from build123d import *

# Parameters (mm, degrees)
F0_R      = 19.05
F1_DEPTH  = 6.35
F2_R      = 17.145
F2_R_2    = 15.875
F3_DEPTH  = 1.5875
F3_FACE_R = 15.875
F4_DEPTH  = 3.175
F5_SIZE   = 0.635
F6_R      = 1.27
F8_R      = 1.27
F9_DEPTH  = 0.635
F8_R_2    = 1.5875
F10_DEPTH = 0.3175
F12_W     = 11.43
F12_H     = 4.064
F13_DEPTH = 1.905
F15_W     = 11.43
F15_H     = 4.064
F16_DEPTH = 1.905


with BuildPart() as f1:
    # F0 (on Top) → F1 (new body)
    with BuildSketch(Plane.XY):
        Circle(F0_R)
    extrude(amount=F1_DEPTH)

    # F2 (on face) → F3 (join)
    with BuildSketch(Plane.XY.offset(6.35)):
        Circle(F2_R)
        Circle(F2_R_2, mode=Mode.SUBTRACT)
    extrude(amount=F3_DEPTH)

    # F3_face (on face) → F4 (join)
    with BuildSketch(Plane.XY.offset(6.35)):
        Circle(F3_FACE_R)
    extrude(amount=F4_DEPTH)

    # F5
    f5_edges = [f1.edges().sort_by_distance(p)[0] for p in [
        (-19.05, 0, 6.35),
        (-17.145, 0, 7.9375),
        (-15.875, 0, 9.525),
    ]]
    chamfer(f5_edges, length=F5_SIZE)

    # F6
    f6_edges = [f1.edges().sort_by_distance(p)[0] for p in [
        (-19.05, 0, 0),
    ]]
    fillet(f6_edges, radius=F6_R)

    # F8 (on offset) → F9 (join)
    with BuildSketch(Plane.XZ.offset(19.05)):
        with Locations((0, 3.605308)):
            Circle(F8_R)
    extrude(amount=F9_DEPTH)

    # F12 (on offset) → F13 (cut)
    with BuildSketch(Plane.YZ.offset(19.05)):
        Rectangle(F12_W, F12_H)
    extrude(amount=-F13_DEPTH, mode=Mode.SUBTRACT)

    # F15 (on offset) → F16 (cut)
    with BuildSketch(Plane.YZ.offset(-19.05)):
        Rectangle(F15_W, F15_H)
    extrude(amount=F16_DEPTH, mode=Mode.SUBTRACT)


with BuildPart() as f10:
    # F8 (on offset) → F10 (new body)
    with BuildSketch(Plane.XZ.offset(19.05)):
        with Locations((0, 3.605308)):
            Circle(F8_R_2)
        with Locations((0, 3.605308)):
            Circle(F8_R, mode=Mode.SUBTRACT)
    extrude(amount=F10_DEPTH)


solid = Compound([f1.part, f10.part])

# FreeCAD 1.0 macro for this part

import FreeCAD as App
import Part
import Sketcher

V = App.Vector
Q = App.Units.Quantity


def edges_at(feature, points):
    """Names of the edges that pass closest to the given points."""
    edges = feature.Shape.Edges
    near = lambda p: min(range(len(edges)), key=lambda i: edges[i].distToShape(Part.Vertex(*p))[0])
    return sorted({f"Edge{near(p) + 1}" for p in points})


def add_polygon(sketch, points):
    """Adds a closed chain of lines whose ends are joined by coincident constraints."""
    first, n = sketch.GeometryCount, len(points)
    for a, b in zip(points, points[1:] + points[:1]):
        sketch.addGeometry(Part.LineSegment(App.Vector(*a, 0), App.Vector(*b, 0)), False)
    for i in range(n):
        sketch.addConstraint(Sketcher.Constraint("Coincident", first + i, 2, first + (i + 1) % n, 1))

doc = App.newDocument("Part")
body = doc.addObject("PartDesign::Body", "Body")
body.AllowCompound = True

# Sketch on XY plane
sketch1 = body.newObject("Sketcher::SketchObject", "Sketch")
sketch1.AttachmentSupport = (doc.getObject("XY_Plane"), [""])
sketch1.MapMode = "FlatFace"
sketch1.addGeometry(Part.Circle(V(0, 0, 0), V(0, 0, 1), 19.05), False)
sketch1.addConstraint([
    Sketcher.Constraint("Coincident", 0, 3, -1, 1),
    Sketcher.Constraint("Diameter", 0, Q("1.5 in")),
])
pad1 = body.newObject("PartDesign::Pad", "Pad")
pad1.Profile = sketch1
pad1.Length = Q("0.25 in")

# Sketch on XY plane
sketch2 = body.newObject("Sketcher::SketchObject", "Sketch001")
sketch2.AttachmentSupport = (doc.getObject("XY_Plane"), [""])
sketch2.MapMode = "FlatFace"
sketch2.AttachmentOffset = App.Placement(V(0, 0, 0.25 * 25.4), App.Rotation())
sketch2.addGeometry([
    Part.Circle(V(0, 0, 0), V(0, 0, 1), 17.145),
    Part.Circle(V(0, 0, 0), V(0, 0, 1), 15.875),
], False)
sketch2.addConstraint([
    Sketcher.Constraint("Coincident", 0, 3, -1, 1),
    Sketcher.Constraint("Coincident", 1, 3, -1, 1),
    Sketcher.Constraint("Diameter", 0, Q("1.35 in")),
    Sketcher.Constraint("Diameter", 1, Q("1.25 in")),
])
pad2 = body.newObject("PartDesign::Pad", "Pad001")
pad2.Profile = sketch2
pad2.Length = Q("0.0625 in")

# Sketch on XY plane
sketch3 = body.newObject("Sketcher::SketchObject", "Sketch002")
sketch3.AttachmentSupport = (doc.getObject("XY_Plane"), [""])
sketch3.MapMode = "FlatFace"
sketch3.AttachmentOffset = App.Placement(V(0, 0, 0.25 * 25.4), App.Rotation())
sketch3.addGeometry(Part.Circle(V(0, 0, 0), V(0, 0, 1), 15.875), False)
sketch3.addConstraint([
    Sketcher.Constraint("Coincident", 0, 3, -1, 1),
    Sketcher.Constraint("Diameter", 0, Q("1.25 in")),
])
pad3 = body.newObject("PartDesign::Pad", "Pad002")
pad3.Profile = sketch3
pad3.Length = Q("0.125 in")
doc.recompute()

chamfer = body.newObject("PartDesign::Chamfer", "Chamfer")
chamfer.Base = (pad3, edges_at(pad3, [(-19.05, 0, 6.35), (-17.145, 0, 7.938), (-15.875, 0, 9.525)]))
chamfer.Size = Q("0.025 in")
doc.recompute()

fillet = body.newObject("PartDesign::Fillet", "Fillet")
fillet.Base = (chamfer, edges_at(chamfer, [(-19.05, 0, 0)]))
fillet.Radius = Q("0.05 in")

# Sketch on XZ plane
sketch4 = body.newObject("Sketcher::SketchObject", "Sketch003")
sketch4.AttachmentSupport = (doc.getObject("XZ_Plane"), [""])
sketch4.MapMode = "FlatFace"
sketch4.AttachmentOffset = App.Placement(V(0, 0, 0.75 * 25.4), App.Rotation())
sketch4.addGeometry(Part.Circle(V(0, 3.605308, 0), V(0, 0, 1), 1.27), False)
sketch4.addConstraint([
    Sketcher.Constraint("PointOnObject", 0, 3, -2),
    Sketcher.Constraint("Diameter", 0, Q("0.1 in")),
    Sketcher.Constraint("DistanceY", -1, 1, 0, 3, Q("3.605308 mm")),
])
pad4 = body.newObject("PartDesign::Pad", "Pad003")
pad4.Profile = sketch4
pad4.Length = Q("0.025 in")

# Sketch on YZ plane
sketch5 = body.newObject("Sketcher::SketchObject", "Sketch004")
sketch5.AttachmentSupport = (doc.getObject("YZ_Plane"), [""])
sketch5.MapMode = "FlatFace"
sketch5.AttachmentOffset = App.Placement(V(0, 0, 0.75 * 25.4), App.Rotation())
add_polygon(sketch5, [(-5.715, 2.032), (-5.715, -2.032), (5.715, -2.032), (5.715, 2.032)])  # lines 0-3
sketch5.addConstraint([
    Sketcher.Constraint("Vertical", 0),
    Sketcher.Constraint("Horizontal", 1),
    Sketcher.Constraint("Vertical", 2),
    Sketcher.Constraint("Horizontal", 3),
    Sketcher.Constraint("Symmetric", 0, 2, 2, 2, -1, 1),
    Sketcher.Constraint("DistanceX", 1, 1, 1, 2, Q("0.45 in")),
    Sketcher.Constraint("DistanceY", 0, 2, 0, 1, Q("0.16 in")),
])
pocket1 = body.newObject("PartDesign::Pocket", "Pocket")
pocket1.Profile = sketch5
pocket1.Length = Q("0.075 in")

# Sketch on YZ plane
sketch6 = body.newObject("Sketcher::SketchObject", "Sketch005")
sketch6.AttachmentSupport = (doc.getObject("YZ_Plane"), [""])
sketch6.MapMode = "FlatFace"
sketch6.AttachmentOffset = App.Placement(V(0, 0, -0.75 * 25.4), App.Rotation())
add_polygon(sketch6, [(-5.715, 2.032), (-5.715, -2.032), (5.715, -2.032), (5.715, 2.032)])  # lines 0-3
sketch6.addConstraint([
    Sketcher.Constraint("Vertical", 0),
    Sketcher.Constraint("Horizontal", 1),
    Sketcher.Constraint("Vertical", 2),
    Sketcher.Constraint("Horizontal", 3),
    Sketcher.Constraint("Symmetric", 0, 2, 2, 2, -1, 1),
    Sketcher.Constraint("DistanceX", 1, 1, 1, 2, Q("0.45 in")),
    Sketcher.Constraint("DistanceY", 0, 2, 0, 1, Q("0.16 in")),
])
pocket2 = body.newObject("PartDesign::Pocket", "Pocket001")
pocket2.Profile = sketch6
pocket2.Length = Q("0.075 in")
pocket2.Reversed = True
body2 = doc.addObject("PartDesign::Body", "Body001")

# Sketch on XZ plane
sketch7 = body2.newObject("Sketcher::SketchObject", "Sketch006")
sketch7.AttachmentSupport = (doc.getObject("XZ_Plane001"), [""])
sketch7.MapMode = "FlatFace"
sketch7.AttachmentOffset = App.Placement(V(0, 0, 0.75 * 25.4), App.Rotation())
sketch7.addGeometry([
    Part.Circle(V(0, 3.605308, 0), V(0, 0, 1), 1.5875),
    Part.Circle(V(0, 3.605308, 0), V(0, 0, 1), 1.27),
], False)
sketch7.addConstraint([
    Sketcher.Constraint("Coincident", 1, 3, 0, 3),
    Sketcher.Constraint("PointOnObject", 0, 3, -2),
    Sketcher.Constraint("Diameter", 1, Q("0.1 in")),
    Sketcher.Constraint("Diameter", 0, Q("0.125 in")),
    Sketcher.Constraint("DistanceY", -1, 1, 0, 3, Q("3.605308 mm")),
])
pad5 = body2.newObject("PartDesign::Pad", "Pad004")
pad5.Profile = sketch7
pad5.Length = Q("0.0125 in")

doc.recompute()
